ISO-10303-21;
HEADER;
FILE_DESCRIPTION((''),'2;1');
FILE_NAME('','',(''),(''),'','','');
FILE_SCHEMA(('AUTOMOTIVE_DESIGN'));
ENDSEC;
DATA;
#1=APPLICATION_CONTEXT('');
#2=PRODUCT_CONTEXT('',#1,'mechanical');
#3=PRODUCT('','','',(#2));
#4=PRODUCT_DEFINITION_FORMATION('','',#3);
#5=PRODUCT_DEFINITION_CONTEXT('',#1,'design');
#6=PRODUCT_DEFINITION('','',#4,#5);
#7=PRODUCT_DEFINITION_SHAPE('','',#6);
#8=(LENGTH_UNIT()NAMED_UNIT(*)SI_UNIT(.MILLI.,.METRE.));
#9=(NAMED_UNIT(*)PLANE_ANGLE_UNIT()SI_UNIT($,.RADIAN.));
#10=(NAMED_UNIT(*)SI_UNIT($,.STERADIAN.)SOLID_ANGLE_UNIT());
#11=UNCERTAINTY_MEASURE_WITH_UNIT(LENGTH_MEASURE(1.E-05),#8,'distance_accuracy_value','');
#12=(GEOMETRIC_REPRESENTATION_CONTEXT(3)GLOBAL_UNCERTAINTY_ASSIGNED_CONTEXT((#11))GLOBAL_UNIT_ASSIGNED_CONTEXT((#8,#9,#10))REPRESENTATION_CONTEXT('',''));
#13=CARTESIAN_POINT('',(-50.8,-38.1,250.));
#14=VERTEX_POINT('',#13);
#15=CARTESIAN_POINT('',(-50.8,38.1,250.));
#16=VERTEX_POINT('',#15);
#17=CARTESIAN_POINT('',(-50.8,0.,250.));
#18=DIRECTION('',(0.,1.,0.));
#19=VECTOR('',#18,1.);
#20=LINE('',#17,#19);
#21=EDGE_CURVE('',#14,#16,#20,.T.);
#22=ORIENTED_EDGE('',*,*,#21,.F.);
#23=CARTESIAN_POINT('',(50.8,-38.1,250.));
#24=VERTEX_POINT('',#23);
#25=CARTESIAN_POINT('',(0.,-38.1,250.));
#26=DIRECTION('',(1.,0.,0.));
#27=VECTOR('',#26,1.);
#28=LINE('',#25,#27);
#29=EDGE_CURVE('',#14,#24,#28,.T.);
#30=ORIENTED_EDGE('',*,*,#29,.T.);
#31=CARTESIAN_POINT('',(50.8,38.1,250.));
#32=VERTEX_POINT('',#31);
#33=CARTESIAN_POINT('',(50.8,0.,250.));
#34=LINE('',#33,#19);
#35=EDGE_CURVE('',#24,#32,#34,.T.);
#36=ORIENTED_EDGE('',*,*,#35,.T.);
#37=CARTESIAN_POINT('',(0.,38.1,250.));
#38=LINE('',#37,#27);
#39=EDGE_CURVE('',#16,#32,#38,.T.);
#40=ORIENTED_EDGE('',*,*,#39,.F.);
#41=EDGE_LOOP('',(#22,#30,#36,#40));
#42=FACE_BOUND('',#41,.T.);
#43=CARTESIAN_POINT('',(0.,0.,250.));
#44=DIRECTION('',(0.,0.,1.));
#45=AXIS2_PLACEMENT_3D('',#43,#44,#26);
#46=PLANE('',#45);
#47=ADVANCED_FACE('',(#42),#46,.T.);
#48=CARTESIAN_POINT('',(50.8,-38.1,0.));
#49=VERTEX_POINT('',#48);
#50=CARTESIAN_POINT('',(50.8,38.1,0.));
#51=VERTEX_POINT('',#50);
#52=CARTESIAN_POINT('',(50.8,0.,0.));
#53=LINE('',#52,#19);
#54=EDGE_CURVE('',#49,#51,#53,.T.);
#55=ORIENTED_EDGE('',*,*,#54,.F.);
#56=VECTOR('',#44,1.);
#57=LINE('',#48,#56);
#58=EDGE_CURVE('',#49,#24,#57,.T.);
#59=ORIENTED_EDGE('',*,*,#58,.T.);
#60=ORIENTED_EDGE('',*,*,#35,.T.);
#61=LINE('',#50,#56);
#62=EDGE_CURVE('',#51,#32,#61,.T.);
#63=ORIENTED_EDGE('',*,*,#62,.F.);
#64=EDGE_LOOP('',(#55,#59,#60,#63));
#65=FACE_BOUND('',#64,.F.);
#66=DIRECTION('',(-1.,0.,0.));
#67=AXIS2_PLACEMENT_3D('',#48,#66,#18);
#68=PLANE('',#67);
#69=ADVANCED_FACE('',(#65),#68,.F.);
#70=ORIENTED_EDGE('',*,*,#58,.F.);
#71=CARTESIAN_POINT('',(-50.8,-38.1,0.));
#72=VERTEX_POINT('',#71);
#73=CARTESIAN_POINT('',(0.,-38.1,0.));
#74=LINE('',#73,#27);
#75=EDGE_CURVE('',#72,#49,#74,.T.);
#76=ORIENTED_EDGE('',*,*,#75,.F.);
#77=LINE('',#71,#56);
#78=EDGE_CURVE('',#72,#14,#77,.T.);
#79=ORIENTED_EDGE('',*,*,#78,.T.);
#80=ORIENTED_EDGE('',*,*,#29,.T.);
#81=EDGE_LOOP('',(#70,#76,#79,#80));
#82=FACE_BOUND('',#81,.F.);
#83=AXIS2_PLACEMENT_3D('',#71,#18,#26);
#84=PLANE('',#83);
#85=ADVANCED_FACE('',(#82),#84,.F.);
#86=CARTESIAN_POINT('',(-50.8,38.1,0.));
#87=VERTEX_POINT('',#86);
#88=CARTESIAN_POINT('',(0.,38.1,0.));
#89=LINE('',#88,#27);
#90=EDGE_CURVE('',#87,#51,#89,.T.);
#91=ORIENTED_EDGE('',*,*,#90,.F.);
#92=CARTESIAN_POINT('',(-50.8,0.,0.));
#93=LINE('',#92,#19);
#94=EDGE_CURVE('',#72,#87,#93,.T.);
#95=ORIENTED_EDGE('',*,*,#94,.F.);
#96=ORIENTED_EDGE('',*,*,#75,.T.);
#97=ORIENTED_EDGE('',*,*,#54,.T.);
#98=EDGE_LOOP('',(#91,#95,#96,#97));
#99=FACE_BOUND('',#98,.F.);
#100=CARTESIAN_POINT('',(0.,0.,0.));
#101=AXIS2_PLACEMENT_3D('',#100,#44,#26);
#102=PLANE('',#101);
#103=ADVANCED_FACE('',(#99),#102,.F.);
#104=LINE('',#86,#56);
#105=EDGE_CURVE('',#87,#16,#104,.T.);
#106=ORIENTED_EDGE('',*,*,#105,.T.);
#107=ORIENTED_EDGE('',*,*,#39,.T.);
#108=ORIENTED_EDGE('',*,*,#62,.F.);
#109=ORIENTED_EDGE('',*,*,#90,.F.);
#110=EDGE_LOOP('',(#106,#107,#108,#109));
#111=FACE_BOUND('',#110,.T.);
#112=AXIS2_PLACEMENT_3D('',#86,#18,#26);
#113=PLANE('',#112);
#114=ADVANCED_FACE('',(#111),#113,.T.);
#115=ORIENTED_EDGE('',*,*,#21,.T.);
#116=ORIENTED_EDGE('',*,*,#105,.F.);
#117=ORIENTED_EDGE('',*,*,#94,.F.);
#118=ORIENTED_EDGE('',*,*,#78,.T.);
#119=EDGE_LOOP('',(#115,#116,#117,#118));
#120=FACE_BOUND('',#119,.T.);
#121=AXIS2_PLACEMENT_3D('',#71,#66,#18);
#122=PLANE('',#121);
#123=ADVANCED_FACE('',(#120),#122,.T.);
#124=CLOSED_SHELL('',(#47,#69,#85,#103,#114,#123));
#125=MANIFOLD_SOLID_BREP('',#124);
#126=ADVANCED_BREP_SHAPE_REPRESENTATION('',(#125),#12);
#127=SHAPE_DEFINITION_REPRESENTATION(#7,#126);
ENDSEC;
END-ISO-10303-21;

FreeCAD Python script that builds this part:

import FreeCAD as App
import Part
import Sketcher
from FreeCAD import Vector
Q = App.Units.Quantity


def add_polygon(sketch, points):
    """Adds a closed chain of lines whose ends are joined by coincident constraints."""
    first, n = sketch.GeometryCount, len(points)
    for a, b in zip(points, points[1:] + points[:1]):
        sketch.addGeometry(Part.LineSegment(App.Vector(*a, 0), App.Vector(*b, 0)), False)
    for i in range(n):
        sketch.addConstraint(Sketcher.Constraint("Coincident", first + i, 2, first + (i + 1) % n, 1))

doc = App.newDocument("Part")
params = doc.addObject("Spreadsheet::Sheet", "Params")
for row, (alias, value) in enumerate([
    ("sketch1_width", "4 in"),
    ("sketch1_height", "3 in"),
    ("pad1_length", "250 mm"),
], start=1):
    params.set(f"A{row}", alias)
    params.set(f"B{row}", "=" + value)
    params.setAlias(f"B{row}", alias)

body = doc.addObject("PartDesign::Body", "Body")

# Sketch on XY plane
sketch1 = body.newObject("Sketcher::SketchObject", "Sketch")
sketch1.AttachmentSupport = (doc.getObject("XY_Plane"), [""])
sketch1.MapMode = "FlatFace"
add_polygon(sketch1, [(-51, 38), (-51, -38), (51, -38), (51, 38)])  # lines 0-3
sketch1.addConstraint(Sketcher.Constraint("Vertical", 0))
sketch1.addConstraint(Sketcher.Constraint("Horizontal", 1))
sketch1.addConstraint(Sketcher.Constraint("Vertical", 2))
sketch1.addConstraint(Sketcher.Constraint("Horizontal", 3))
sketch1.addConstraint(Sketcher.Constraint("Symmetric", 0, 2, 2, 2, -1, 1))
sketch1.addConstraint(Sketcher.Constraint("DistanceX", 1, 1, 1, 2, Q("4 in")))
sketch1.addConstraint(Sketcher.Constraint("DistanceY", 0, 2, 0, 1, Q("3 in")))
sketch1.setExpression("Constraints[9]", "Params.sketch1_width")
sketch1.setExpression("Constraints[10]", "Params.sketch1_height")
pad1 = body.newObject("PartDesign::Pad", "Pad")
pad1.Profile = sketch1
pad1.setExpression("Length", "Params.pad1_length")

doc.recompute()
